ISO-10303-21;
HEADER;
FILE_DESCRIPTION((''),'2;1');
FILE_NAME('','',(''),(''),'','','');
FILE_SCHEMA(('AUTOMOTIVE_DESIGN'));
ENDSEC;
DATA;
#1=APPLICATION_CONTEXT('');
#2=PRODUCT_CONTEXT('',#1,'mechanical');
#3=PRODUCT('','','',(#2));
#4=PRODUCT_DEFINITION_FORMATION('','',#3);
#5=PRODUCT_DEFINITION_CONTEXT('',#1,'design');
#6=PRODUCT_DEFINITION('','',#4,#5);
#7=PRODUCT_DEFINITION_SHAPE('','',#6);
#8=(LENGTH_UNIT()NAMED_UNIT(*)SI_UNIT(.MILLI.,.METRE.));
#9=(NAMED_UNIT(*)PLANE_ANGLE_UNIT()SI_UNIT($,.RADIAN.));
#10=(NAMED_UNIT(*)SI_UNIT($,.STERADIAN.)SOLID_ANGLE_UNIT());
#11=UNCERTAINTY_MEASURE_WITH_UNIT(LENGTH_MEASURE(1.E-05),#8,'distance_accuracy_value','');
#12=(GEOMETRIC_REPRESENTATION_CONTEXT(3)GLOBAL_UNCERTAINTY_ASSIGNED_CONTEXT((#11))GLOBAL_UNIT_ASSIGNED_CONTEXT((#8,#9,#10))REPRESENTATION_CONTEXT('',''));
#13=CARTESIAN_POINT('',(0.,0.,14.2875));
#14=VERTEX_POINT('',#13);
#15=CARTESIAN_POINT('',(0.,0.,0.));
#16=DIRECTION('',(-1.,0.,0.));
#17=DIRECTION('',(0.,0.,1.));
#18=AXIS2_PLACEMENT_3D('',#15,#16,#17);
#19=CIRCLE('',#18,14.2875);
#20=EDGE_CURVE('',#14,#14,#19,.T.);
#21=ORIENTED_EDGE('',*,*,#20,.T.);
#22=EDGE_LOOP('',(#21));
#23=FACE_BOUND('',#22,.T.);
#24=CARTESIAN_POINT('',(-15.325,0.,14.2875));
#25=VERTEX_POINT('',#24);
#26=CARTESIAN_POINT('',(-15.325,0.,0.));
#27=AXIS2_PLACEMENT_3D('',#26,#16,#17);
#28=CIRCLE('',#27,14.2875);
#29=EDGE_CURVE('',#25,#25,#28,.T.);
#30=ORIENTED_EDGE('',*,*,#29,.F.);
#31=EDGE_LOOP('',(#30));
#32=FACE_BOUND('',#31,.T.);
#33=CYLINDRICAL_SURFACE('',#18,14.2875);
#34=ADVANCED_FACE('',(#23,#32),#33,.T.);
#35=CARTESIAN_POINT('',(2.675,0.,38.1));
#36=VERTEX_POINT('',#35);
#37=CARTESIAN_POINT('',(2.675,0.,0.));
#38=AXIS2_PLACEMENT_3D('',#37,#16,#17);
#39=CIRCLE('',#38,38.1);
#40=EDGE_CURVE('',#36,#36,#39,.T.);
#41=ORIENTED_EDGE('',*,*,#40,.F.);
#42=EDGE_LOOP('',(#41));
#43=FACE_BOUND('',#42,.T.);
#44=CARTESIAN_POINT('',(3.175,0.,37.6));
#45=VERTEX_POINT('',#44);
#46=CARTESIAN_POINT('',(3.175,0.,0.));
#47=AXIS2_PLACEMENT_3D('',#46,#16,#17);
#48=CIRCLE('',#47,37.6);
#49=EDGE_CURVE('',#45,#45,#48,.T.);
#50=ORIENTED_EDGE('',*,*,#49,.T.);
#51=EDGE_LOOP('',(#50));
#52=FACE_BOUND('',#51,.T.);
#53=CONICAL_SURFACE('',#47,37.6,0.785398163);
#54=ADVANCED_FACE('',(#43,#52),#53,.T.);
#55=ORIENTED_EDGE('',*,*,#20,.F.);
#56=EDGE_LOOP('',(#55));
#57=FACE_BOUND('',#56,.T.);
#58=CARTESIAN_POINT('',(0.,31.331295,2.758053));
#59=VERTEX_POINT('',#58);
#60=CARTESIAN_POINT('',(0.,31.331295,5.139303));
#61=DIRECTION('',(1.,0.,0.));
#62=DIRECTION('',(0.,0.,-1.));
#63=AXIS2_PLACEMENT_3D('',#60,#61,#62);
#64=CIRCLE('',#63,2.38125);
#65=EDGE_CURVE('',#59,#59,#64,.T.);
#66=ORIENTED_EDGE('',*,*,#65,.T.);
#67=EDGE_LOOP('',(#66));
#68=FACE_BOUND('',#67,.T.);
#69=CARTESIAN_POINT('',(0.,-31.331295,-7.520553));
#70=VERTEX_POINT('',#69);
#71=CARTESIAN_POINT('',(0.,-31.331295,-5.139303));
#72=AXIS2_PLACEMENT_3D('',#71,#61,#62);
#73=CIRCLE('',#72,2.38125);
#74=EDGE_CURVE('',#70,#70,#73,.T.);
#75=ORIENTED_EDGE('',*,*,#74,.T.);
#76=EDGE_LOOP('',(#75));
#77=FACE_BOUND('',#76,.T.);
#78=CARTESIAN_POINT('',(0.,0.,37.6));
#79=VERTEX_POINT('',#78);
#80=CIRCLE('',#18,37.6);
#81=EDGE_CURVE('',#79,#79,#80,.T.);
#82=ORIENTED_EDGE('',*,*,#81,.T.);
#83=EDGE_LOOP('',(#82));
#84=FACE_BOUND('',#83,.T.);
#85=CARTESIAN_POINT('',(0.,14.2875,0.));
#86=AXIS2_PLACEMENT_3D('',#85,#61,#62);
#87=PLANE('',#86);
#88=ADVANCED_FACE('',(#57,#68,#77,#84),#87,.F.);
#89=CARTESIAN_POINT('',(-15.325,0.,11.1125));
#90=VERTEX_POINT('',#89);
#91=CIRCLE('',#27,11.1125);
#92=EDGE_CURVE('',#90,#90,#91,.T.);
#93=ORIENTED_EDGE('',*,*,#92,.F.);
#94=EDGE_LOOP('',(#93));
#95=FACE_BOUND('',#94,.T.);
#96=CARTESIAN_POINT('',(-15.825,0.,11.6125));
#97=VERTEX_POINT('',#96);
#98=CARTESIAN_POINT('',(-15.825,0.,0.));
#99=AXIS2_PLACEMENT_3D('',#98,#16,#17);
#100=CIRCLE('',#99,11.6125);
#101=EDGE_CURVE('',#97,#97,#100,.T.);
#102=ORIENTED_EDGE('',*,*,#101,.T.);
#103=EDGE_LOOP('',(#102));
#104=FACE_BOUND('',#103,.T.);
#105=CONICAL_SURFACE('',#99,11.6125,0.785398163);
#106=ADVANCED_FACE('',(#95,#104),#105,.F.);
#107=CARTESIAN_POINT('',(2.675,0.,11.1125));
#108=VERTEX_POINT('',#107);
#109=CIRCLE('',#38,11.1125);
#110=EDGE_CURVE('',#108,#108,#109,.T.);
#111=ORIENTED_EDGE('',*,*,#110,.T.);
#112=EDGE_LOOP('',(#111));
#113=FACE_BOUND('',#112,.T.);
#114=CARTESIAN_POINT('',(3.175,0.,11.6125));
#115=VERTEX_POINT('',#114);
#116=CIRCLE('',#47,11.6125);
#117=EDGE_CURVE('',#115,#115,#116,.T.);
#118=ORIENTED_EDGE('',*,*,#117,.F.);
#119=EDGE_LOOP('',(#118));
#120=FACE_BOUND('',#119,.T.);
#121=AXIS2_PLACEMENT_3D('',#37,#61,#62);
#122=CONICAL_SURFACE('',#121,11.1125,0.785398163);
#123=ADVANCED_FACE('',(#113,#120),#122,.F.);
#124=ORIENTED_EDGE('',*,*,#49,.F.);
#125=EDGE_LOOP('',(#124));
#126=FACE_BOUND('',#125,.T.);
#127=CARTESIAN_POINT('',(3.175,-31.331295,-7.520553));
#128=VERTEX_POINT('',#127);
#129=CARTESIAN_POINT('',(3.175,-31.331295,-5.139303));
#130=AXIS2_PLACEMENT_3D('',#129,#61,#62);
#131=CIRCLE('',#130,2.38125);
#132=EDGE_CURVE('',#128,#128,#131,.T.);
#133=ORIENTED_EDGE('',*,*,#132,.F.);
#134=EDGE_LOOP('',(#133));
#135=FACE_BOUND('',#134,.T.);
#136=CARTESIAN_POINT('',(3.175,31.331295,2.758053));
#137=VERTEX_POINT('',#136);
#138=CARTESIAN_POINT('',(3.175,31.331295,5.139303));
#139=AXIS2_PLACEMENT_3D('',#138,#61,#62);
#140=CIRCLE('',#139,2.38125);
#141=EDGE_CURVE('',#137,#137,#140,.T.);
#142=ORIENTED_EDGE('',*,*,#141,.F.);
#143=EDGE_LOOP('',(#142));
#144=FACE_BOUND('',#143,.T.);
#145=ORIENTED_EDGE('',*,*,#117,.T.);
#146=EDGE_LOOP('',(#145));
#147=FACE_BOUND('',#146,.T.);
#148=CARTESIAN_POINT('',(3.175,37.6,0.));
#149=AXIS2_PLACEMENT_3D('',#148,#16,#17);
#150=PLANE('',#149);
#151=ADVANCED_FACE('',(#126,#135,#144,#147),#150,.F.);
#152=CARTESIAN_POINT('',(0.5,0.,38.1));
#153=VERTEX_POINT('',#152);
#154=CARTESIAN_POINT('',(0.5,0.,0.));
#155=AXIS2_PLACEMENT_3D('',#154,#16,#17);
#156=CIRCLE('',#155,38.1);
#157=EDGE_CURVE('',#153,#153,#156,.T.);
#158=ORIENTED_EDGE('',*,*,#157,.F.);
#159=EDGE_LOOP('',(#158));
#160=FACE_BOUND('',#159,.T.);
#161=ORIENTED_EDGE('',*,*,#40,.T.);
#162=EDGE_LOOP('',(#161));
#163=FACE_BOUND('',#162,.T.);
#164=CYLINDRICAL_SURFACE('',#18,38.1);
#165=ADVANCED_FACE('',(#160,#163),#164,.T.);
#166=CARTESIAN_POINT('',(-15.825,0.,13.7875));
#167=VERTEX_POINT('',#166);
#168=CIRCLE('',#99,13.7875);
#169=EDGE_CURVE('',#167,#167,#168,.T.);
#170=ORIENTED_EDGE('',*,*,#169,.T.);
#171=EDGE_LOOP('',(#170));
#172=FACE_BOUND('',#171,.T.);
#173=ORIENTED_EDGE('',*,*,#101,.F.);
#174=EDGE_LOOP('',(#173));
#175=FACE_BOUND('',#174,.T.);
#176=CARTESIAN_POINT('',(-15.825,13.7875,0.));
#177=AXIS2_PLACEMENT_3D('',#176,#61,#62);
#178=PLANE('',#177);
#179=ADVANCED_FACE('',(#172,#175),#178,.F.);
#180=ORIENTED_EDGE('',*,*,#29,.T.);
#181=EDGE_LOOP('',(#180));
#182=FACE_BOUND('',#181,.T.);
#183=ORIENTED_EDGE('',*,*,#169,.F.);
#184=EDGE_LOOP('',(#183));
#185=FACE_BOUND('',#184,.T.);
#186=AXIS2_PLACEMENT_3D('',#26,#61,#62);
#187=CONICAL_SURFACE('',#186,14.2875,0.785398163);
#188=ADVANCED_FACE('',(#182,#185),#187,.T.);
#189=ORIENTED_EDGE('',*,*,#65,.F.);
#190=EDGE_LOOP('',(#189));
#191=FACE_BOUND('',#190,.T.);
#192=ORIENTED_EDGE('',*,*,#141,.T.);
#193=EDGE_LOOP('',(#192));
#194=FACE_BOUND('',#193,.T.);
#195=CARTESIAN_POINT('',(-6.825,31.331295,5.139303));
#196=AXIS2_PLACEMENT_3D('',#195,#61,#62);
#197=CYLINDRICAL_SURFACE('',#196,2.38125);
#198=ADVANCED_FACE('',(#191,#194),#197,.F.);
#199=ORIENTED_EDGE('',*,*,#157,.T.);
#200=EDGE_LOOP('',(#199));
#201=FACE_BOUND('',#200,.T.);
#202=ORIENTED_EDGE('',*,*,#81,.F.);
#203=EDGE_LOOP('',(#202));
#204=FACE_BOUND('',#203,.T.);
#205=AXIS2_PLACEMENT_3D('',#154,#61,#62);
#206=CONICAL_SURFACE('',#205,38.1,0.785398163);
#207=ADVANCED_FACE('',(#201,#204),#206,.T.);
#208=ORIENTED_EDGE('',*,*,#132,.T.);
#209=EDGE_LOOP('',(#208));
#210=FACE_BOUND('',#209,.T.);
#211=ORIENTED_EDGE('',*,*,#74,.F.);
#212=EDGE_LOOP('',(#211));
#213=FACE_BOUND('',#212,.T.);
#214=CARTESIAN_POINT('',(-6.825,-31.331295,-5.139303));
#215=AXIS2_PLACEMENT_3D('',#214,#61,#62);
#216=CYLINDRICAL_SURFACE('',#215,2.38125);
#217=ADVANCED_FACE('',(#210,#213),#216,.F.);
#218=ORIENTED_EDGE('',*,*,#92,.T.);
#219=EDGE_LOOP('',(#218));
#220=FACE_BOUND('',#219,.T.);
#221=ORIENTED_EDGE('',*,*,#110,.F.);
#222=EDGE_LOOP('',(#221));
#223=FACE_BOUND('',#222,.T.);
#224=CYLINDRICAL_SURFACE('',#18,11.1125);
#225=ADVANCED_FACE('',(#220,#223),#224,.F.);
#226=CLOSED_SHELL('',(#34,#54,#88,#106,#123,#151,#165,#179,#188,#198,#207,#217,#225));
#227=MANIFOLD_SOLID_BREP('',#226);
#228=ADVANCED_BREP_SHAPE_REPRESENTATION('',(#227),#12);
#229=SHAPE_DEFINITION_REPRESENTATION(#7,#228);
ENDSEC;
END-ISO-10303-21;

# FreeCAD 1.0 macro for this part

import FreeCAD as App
import Part
import Sketcher
from FreeCAD import Vector
Q = App.Units.Quantity


def add_polygon(sketch, points):
    """Adds a closed chain of lines whose ends are joined by coincident constraints."""
    first, n = sketch.GeometryCount, len(points)
    for a, b in zip(points, points[1:] + points[:1]):
        sketch.addGeometry(Part.LineSegment(App.Vector(*a, 0), App.Vector(*b, 0)), False)
    for i in range(n):
        sketch.addConstraint(Sketcher.Constraint("Coincident", first + i, 2, first + (i + 1) % n, 1))

doc = App.newDocument("Part")
body = doc.addObject("PartDesign::Body", "Body")

# Sketch on XY plane
sketch1 = doc.addObject("Sketcher::SketchObject", "Sketch")
body.addObject(sketch1)
sketch1.AttachmentSupport = (doc.XY_Plane, [""])
sketch1.MapMode = "FlatFace"
add_polygon(sketch1, [(-15.8, 13.8), (-15.8, 11.6), (-15.3, 11.1), (2.7, 11.1), (3.2, 11.6), (3.2, 37.6), (2.7, 38.1), (0.5, 38.1), (0, 37.6), (0, 14.3), (-15.3, 14.3)])  # lines 0-10
sketch1.addConstraint(Sketcher.Constraint("Vertical", 0))
sketch1.addConstraint(Sketcher.Constraint("Horizontal", 2))
sketch1.addConstraint(Sketcher.Constraint("Vertical", 4))
sketch1.addConstraint(Sketcher.Constraint("Horizontal", 6))
sketch1.addConstraint(Sketcher.Constraint("Vertical", 8))
sketch1.addConstraint(Sketcher.Constraint("Horizontal", 9))
sketch1.addConstraint(Sketcher.Constraint("PointOnObject", 7, 2, -2))
sketch1.addConstraint(Sketcher.Constraint("Perpendicular", 1, 3))
sketch1.addConstraint(Sketcher.Constraint("Perpendicular", 3, 5))
sketch1.addConstraint(Sketcher.Constraint("Perpendicular", 5, 7))
sketch1.addConstraint(Sketcher.Constraint("Parallel", 7, 10))
sketch1.addConstraint(Sketcher.Constraint("Horizontal", 0, 2, 3, 2))
sketch1.addConstraint(Sketcher.Constraint("Horizontal", 4, 2, 7, 2))
sketch1.addConstraint(Sketcher.Constraint("Vertical", 2, 2, 5, 2))
sketch1.addConstraint(Sketcher.Constraint("Vertical", 1, 2, 9, 2))
sketch1.addConstraint(Sketcher.Constraint("Equal", 6, 0))
sketch1.addConstraint(Sketcher.Constraint("Equal", 1, 3))
sketch1.addConstraint(Sketcher.Constraint("DistanceX", 2, 1, 2, 2, Q("18 mm")))
sketch1.addConstraint(Sketcher.Constraint("DistanceX", 0, 2, 3, 2, Q("19 mm")))
sketch1.addConstraint(Sketcher.Constraint("DistanceY", -1, 1, 4, 2, Q("37.6 mm")))
sketch1.addConstraint(Sketcher.Constraint("DistanceX", 6, 2, 6, 1, Q("2.175 mm")))
sketch1.addConstraint(Sketcher.Constraint("DistanceY", 4, 1, 4, 2, Q("25.9875 mm")))
revolution = doc.addObject("PartDesign::Revolution", "Revolution")
body.addObject(revolution)
revolution.Profile = sketch1
revolution.ReferenceAxis = (sketch1, ["H_Axis"])
revolution.Angle = 360

# Sketch on YZ plane
sketch2 = doc.addObject("Sketcher::SketchObject", "Sketch001")
body.addObject(sketch2)
sketch2.AttachmentSupport = (doc.YZ_Plane, [""])
sketch2.MapMode = "FlatFace"
sketch2.AttachmentOffset = App.Placement(Vector(0, 0, 3.175), App.Rotation())
sketch2.addGeometry(Part.Circle(Vector(31.3, 5.1, 0), Vector(0, 0, 1), 2.4), False)
sketch2.addGeometry(Part.Circle(Vector(-31.3, -5.1, 0), Vector(0, 0, 1), 2.4), False)
sketch2.addConstraint(Sketcher.Constraint("Equal", 0, 1))
sketch2.addConstraint(Sketcher.Constraint("Symmetric", 0, 3, 1, 3, -1, 1))
sketch2.addConstraint(Sketcher.Constraint("Diameter", 0, Q("4.7625 mm")))
sketch2.addConstraint(Sketcher.Constraint("DistanceX", 1, 3, 0, 3, Q("62.66259 mm")))
sketch2.addConstraint(Sketcher.Constraint("DistanceY", -1, 1, 0, 3, Q("5.139303 mm")))
pocket1 = doc.addObject("PartDesign::Pocket", "Pocket")
body.addObject(pocket1)
pocket1.Profile = sketch2
pocket1.Length = 10

doc.recompute()
